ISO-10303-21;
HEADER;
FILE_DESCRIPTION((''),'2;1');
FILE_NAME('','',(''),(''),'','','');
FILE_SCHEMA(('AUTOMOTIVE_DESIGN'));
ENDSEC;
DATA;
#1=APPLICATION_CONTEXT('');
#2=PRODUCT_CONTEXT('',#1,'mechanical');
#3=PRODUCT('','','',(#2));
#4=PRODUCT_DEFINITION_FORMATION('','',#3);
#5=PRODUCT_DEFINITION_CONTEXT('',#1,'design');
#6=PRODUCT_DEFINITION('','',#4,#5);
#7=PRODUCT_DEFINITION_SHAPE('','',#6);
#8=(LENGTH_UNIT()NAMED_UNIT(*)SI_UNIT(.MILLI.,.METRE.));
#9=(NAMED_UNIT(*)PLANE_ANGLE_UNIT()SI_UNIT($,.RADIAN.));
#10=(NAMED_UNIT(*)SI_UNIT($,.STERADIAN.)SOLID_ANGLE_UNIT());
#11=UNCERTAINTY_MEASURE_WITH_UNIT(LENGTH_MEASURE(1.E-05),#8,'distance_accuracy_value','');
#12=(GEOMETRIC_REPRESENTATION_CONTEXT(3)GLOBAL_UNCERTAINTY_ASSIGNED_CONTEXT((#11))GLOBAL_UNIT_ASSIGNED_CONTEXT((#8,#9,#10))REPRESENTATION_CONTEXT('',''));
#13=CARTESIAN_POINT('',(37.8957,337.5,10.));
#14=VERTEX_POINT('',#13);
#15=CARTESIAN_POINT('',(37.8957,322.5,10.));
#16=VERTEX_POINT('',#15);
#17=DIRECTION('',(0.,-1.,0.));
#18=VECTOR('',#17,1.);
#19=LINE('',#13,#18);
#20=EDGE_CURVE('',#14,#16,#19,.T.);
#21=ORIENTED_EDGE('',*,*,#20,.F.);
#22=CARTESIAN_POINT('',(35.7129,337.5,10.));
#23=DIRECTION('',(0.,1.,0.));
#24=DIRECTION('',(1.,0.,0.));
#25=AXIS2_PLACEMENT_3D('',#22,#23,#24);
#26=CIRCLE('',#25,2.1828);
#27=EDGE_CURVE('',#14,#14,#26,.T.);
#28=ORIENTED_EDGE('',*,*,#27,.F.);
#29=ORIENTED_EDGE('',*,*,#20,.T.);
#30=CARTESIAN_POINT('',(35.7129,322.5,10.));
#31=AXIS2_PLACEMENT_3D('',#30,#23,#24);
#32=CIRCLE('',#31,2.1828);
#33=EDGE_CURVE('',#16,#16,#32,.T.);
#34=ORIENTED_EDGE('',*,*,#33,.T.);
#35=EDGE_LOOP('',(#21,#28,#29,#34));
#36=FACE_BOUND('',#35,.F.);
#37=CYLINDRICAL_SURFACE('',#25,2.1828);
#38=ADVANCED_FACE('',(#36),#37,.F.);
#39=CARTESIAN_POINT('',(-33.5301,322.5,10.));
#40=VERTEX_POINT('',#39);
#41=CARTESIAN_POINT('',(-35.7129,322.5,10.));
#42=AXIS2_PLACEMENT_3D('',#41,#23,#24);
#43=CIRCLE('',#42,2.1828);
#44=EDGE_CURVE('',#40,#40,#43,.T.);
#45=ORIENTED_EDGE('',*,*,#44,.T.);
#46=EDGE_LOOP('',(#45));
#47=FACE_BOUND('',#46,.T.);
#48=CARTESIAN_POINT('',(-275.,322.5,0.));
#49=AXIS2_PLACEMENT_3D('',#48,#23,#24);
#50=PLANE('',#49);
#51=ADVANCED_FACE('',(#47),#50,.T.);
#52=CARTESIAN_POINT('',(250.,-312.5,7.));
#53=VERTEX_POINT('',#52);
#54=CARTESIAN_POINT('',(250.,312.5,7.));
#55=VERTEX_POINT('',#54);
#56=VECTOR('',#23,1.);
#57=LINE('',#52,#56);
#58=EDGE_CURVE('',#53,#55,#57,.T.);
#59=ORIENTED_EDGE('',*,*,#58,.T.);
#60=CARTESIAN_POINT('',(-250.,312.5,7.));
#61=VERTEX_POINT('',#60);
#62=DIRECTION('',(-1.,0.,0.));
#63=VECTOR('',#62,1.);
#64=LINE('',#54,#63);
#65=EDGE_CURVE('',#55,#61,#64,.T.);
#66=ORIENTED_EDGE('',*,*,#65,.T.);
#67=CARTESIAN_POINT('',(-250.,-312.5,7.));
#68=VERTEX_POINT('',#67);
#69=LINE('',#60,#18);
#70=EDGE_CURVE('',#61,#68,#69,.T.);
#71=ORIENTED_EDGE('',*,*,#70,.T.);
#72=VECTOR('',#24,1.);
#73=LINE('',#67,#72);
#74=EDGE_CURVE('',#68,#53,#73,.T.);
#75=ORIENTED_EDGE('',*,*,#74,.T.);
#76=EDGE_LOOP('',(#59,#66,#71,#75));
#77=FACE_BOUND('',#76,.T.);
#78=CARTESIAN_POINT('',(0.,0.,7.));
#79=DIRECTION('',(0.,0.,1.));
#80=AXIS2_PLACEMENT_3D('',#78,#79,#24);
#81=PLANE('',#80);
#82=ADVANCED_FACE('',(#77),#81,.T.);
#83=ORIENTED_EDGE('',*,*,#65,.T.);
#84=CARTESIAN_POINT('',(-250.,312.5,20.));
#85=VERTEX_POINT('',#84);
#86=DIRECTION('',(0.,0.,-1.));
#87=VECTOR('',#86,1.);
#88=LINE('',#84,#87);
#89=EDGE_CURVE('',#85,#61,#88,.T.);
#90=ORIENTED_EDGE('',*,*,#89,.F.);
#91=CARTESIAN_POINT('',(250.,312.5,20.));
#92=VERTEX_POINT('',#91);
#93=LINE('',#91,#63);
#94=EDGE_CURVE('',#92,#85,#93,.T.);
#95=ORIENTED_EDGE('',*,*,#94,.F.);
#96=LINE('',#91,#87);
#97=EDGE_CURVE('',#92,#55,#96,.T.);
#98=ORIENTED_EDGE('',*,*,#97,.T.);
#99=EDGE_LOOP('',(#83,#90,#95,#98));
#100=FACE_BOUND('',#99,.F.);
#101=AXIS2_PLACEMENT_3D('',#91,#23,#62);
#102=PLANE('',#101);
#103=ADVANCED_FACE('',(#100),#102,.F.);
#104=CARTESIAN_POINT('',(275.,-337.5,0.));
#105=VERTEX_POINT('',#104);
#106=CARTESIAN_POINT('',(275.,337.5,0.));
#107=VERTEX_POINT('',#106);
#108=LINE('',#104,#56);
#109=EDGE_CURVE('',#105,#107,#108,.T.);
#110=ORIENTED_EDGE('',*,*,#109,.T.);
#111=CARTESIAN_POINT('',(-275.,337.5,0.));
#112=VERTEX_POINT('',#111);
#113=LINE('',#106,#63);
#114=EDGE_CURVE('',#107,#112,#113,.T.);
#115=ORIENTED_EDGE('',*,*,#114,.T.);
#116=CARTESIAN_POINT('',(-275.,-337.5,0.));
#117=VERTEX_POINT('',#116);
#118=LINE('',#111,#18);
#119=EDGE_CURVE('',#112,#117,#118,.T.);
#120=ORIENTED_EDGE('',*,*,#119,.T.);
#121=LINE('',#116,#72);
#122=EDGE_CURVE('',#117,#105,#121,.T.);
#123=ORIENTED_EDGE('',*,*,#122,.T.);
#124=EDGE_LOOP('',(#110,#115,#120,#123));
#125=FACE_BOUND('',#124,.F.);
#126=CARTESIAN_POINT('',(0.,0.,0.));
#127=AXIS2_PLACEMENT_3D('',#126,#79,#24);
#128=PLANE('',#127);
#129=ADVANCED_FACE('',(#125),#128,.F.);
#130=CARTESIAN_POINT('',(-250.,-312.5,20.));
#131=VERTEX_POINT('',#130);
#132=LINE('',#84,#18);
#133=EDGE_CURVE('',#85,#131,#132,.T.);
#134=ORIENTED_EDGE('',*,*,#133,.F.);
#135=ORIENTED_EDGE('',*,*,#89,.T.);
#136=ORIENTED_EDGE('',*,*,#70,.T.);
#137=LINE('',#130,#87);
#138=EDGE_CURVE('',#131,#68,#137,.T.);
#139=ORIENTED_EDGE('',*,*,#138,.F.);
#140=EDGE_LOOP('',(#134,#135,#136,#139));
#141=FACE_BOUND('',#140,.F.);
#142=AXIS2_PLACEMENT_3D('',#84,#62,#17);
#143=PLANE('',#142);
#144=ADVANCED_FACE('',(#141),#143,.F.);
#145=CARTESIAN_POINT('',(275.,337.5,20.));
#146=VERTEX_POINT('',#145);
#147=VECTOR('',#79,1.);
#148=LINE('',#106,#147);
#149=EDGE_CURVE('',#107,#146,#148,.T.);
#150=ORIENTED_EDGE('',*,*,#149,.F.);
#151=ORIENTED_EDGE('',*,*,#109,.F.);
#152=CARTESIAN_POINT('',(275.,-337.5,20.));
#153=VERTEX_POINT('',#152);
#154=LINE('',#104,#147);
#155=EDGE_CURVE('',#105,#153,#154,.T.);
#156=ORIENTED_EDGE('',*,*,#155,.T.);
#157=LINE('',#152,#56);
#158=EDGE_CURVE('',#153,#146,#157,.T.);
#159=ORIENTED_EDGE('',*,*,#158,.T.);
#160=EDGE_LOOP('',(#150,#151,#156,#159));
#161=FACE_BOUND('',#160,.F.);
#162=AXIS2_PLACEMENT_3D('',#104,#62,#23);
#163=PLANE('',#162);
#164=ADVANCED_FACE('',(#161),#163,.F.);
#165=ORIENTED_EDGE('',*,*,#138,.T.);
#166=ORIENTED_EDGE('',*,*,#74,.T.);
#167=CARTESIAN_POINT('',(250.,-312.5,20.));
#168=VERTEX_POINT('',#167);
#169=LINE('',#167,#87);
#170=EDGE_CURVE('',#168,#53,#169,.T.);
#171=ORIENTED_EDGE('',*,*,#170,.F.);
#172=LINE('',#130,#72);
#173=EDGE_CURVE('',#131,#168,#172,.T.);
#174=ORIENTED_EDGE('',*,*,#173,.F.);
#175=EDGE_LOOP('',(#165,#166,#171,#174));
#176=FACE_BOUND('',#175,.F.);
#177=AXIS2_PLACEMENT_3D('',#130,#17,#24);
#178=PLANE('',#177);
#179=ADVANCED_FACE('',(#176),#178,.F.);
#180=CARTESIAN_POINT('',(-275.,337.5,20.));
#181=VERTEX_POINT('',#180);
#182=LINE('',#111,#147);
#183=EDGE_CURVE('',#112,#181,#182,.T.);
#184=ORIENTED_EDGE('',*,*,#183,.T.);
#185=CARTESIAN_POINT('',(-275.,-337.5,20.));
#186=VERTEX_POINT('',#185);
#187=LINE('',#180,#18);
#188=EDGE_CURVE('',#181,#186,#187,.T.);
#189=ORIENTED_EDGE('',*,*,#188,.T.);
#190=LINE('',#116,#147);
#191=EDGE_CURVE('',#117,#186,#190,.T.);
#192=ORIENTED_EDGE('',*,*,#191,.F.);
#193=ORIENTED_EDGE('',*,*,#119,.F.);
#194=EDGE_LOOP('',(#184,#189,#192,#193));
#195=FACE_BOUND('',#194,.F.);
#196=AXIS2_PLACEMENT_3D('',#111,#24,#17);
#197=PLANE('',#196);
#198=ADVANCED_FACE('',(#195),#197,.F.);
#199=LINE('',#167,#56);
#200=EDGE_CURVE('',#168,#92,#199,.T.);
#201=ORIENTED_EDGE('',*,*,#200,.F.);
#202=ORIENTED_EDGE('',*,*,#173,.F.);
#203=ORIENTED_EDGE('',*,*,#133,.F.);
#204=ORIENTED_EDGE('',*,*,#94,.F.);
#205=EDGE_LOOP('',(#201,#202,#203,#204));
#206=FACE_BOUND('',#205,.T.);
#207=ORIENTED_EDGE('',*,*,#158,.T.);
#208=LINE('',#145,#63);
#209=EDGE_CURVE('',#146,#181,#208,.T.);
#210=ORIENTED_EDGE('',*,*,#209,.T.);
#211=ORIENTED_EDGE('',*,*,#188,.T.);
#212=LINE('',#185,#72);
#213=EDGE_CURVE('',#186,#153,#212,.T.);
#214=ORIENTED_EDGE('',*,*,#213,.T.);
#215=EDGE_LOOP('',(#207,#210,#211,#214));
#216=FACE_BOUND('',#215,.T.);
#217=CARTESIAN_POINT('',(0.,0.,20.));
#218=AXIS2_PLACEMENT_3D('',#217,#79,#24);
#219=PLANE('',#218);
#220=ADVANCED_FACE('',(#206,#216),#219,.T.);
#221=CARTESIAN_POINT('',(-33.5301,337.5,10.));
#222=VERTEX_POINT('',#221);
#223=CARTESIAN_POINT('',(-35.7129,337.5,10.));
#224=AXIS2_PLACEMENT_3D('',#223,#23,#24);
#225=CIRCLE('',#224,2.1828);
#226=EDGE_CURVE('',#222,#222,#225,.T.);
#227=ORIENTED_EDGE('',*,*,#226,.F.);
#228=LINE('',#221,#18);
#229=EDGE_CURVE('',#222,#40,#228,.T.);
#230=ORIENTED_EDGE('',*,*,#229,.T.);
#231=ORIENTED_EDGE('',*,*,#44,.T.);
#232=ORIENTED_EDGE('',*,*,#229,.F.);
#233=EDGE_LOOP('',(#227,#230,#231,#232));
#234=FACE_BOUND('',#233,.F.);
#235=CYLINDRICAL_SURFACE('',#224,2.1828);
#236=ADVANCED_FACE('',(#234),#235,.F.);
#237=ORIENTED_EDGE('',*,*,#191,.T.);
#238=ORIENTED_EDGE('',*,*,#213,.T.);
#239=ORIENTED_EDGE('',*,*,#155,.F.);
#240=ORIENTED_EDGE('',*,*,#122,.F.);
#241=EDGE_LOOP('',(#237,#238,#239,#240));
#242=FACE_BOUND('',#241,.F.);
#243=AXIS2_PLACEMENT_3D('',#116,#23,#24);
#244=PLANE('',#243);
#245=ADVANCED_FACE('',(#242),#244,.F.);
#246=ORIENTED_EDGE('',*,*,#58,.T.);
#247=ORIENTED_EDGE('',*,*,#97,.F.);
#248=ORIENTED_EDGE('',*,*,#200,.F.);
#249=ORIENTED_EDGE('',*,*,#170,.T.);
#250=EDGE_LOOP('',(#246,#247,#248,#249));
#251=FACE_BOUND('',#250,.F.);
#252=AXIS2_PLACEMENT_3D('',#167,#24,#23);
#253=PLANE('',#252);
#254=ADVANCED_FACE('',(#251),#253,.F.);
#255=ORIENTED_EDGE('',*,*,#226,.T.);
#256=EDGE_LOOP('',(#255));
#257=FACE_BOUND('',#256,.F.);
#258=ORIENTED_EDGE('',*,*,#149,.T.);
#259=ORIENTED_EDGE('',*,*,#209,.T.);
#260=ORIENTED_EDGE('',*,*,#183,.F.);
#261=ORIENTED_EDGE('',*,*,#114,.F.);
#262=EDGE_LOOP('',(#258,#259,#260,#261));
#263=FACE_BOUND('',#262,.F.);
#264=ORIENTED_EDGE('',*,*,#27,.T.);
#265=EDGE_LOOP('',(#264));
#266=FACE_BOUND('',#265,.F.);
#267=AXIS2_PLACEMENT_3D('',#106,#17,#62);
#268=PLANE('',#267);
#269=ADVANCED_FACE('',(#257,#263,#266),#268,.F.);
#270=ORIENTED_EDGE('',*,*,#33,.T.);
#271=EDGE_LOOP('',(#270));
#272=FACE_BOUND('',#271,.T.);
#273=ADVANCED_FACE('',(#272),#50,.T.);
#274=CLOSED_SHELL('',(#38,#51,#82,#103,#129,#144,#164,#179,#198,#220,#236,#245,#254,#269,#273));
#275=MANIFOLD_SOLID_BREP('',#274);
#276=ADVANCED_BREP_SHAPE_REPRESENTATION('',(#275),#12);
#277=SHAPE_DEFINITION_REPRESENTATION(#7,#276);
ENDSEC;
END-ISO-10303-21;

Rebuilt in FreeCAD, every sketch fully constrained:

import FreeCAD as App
import Part
import Sketcher

V = App.Vector
Q = App.Units.Quantity


def add_polygon(sketch, points):
    """Adds a closed chain of lines whose ends are joined by coincident constraints."""
    first, n = sketch.GeometryCount, len(points)
    for a, b in zip(points, points[1:] + points[:1]):
        sketch.addGeometry(Part.LineSegment(App.Vector(*a, 0), App.Vector(*b, 0)), False)
    for i in range(n):
        sketch.addConstraint(Sketcher.Constraint("Coincident", first + i, 2, first + (i + 1) % n, 1))

doc = App.newDocument("Part")
params = doc.addObject("Spreadsheet::Sheet", "Params")
for row, (alias, value) in enumerate([
    ("sketch1_width", "550 mm"),
    ("sketch1_height", "675 mm"),
    ("pad1_length", "20 mm"),
    ("sketch2_width", "500 mm"),
    ("sketch2_height", "625 mm"),
    ("pocket1_length", "13 mm"),
    ("pocket2_length", "15 mm"),
], start=1):
    params.set(f"A{row}", alias)
    params.set(f"B{row}", "=" + value)
    params.setAlias(f"B{row}", alias)

body = doc.addObject("PartDesign::Body", "Body")

sketch1 = body.newObject("Sketcher::SketchObject", "Sketch")
sketch1.AttachmentSupport = (doc.getObject("XY_Plane"), [""])
sketch1.MapMode = "FlatFace"
add_polygon(sketch1, [(-275, 338), (-275, -338), (275, -338), (275, 338)])
sketch1.addConstraint([
    Sketcher.Constraint("Vertical", 0),
    Sketcher.Constraint("Horizontal", 1),
    Sketcher.Constraint("Vertical", 2),
    Sketcher.Constraint("Horizontal", 3),
    Sketcher.Constraint("Symmetric", 0, 2, 2, 2, -1, 1),
    Sketcher.Constraint("DistanceX", 1, 1, 1, 2, Q("550 mm")),
    Sketcher.Constraint("DistanceY", 0, 2, 0, 1, Q("675 mm")),
])
sketch1.setExpression("Constraints[9]", "Params.sketch1_width")
sketch1.setExpression("Constraints[10]", "Params.sketch1_height")
pad1 = body.newObject("PartDesign::Pad", "Pad")
pad1.Profile = sketch1
pad1.setExpression("Length", "Params.pad1_length")

sketch2 = body.newObject("Sketcher::SketchObject", "Sketch001")
sketch2.AttachmentSupport = (doc.getObject("XY_Plane"), [""])
sketch2.MapMode = "FlatFace"
sketch2.AttachmentOffset = App.Placement(V(0, 0, 20), App.Rotation())
add_polygon(sketch2, [(-250, 312), (-250, -312), (250, -312), (250, 312)])
sketch2.addConstraint([
    Sketcher.Constraint("Vertical", 0),
    Sketcher.Constraint("Horizontal", 1),
    Sketcher.Constraint("Vertical", 2),
    Sketcher.Constraint("Horizontal", 3),
    Sketcher.Constraint("Symmetric", 0, 2, 2, 2, -1, 1),
    Sketcher.Constraint("DistanceX", 1, 1, 1, 2, Q("500 mm")),
    Sketcher.Constraint("DistanceY", 0, 2, 0, 1, Q("625 mm")),
])
sketch2.setExpression("Constraints[9]", "Params.sketch2_width")
sketch2.setExpression("Constraints[10]", "Params.sketch2_height")
pocket1 = body.newObject("PartDesign::Pocket", "Pocket")
pocket1.Profile = sketch2
pocket1.setExpression("Length", "Params.pocket1_length")

sketch3 = body.newObject("Sketcher::SketchObject", "Sketch002")
sketch3.AttachmentSupport = (doc.getObject("XZ_Plane"), [""])
sketch3.MapMode = "FlatFace"
sketch3.AttachmentOffset = App.Placement(V(0, 0, -337.5), App.Rotation())
sketch3.addGeometry([
    Part.Circle(V(-35.7, 10, 0), V(0, 0, 1), 2.2),
    Part.Circle(V(35.7, 10, 0), V(0, 0, 1), 2.2),
], False)
sketch3.addConstraint([
    Sketcher.Constraint("Equal", 0, 1),
    Sketcher.Constraint("Symmetric", 0, 3, 1, 3, -2),
    Sketcher.Constraint("Diameter", 0, Q("4.3656 mm")),
    Sketcher.Constraint("DistanceY", -1, 1, 0, 3, Q("10 mm")),
    Sketcher.Constraint("DistanceX", 0, 3, -1, 1, Q("35.713 mm")),
])
pocket2 = body.newObject("PartDesign::Pocket", "Pocket001")
pocket2.Profile = sketch3
pocket2.setExpression("Length", "Params.pocket2_length")
pocket2.Reversed = True

doc.recompute()
